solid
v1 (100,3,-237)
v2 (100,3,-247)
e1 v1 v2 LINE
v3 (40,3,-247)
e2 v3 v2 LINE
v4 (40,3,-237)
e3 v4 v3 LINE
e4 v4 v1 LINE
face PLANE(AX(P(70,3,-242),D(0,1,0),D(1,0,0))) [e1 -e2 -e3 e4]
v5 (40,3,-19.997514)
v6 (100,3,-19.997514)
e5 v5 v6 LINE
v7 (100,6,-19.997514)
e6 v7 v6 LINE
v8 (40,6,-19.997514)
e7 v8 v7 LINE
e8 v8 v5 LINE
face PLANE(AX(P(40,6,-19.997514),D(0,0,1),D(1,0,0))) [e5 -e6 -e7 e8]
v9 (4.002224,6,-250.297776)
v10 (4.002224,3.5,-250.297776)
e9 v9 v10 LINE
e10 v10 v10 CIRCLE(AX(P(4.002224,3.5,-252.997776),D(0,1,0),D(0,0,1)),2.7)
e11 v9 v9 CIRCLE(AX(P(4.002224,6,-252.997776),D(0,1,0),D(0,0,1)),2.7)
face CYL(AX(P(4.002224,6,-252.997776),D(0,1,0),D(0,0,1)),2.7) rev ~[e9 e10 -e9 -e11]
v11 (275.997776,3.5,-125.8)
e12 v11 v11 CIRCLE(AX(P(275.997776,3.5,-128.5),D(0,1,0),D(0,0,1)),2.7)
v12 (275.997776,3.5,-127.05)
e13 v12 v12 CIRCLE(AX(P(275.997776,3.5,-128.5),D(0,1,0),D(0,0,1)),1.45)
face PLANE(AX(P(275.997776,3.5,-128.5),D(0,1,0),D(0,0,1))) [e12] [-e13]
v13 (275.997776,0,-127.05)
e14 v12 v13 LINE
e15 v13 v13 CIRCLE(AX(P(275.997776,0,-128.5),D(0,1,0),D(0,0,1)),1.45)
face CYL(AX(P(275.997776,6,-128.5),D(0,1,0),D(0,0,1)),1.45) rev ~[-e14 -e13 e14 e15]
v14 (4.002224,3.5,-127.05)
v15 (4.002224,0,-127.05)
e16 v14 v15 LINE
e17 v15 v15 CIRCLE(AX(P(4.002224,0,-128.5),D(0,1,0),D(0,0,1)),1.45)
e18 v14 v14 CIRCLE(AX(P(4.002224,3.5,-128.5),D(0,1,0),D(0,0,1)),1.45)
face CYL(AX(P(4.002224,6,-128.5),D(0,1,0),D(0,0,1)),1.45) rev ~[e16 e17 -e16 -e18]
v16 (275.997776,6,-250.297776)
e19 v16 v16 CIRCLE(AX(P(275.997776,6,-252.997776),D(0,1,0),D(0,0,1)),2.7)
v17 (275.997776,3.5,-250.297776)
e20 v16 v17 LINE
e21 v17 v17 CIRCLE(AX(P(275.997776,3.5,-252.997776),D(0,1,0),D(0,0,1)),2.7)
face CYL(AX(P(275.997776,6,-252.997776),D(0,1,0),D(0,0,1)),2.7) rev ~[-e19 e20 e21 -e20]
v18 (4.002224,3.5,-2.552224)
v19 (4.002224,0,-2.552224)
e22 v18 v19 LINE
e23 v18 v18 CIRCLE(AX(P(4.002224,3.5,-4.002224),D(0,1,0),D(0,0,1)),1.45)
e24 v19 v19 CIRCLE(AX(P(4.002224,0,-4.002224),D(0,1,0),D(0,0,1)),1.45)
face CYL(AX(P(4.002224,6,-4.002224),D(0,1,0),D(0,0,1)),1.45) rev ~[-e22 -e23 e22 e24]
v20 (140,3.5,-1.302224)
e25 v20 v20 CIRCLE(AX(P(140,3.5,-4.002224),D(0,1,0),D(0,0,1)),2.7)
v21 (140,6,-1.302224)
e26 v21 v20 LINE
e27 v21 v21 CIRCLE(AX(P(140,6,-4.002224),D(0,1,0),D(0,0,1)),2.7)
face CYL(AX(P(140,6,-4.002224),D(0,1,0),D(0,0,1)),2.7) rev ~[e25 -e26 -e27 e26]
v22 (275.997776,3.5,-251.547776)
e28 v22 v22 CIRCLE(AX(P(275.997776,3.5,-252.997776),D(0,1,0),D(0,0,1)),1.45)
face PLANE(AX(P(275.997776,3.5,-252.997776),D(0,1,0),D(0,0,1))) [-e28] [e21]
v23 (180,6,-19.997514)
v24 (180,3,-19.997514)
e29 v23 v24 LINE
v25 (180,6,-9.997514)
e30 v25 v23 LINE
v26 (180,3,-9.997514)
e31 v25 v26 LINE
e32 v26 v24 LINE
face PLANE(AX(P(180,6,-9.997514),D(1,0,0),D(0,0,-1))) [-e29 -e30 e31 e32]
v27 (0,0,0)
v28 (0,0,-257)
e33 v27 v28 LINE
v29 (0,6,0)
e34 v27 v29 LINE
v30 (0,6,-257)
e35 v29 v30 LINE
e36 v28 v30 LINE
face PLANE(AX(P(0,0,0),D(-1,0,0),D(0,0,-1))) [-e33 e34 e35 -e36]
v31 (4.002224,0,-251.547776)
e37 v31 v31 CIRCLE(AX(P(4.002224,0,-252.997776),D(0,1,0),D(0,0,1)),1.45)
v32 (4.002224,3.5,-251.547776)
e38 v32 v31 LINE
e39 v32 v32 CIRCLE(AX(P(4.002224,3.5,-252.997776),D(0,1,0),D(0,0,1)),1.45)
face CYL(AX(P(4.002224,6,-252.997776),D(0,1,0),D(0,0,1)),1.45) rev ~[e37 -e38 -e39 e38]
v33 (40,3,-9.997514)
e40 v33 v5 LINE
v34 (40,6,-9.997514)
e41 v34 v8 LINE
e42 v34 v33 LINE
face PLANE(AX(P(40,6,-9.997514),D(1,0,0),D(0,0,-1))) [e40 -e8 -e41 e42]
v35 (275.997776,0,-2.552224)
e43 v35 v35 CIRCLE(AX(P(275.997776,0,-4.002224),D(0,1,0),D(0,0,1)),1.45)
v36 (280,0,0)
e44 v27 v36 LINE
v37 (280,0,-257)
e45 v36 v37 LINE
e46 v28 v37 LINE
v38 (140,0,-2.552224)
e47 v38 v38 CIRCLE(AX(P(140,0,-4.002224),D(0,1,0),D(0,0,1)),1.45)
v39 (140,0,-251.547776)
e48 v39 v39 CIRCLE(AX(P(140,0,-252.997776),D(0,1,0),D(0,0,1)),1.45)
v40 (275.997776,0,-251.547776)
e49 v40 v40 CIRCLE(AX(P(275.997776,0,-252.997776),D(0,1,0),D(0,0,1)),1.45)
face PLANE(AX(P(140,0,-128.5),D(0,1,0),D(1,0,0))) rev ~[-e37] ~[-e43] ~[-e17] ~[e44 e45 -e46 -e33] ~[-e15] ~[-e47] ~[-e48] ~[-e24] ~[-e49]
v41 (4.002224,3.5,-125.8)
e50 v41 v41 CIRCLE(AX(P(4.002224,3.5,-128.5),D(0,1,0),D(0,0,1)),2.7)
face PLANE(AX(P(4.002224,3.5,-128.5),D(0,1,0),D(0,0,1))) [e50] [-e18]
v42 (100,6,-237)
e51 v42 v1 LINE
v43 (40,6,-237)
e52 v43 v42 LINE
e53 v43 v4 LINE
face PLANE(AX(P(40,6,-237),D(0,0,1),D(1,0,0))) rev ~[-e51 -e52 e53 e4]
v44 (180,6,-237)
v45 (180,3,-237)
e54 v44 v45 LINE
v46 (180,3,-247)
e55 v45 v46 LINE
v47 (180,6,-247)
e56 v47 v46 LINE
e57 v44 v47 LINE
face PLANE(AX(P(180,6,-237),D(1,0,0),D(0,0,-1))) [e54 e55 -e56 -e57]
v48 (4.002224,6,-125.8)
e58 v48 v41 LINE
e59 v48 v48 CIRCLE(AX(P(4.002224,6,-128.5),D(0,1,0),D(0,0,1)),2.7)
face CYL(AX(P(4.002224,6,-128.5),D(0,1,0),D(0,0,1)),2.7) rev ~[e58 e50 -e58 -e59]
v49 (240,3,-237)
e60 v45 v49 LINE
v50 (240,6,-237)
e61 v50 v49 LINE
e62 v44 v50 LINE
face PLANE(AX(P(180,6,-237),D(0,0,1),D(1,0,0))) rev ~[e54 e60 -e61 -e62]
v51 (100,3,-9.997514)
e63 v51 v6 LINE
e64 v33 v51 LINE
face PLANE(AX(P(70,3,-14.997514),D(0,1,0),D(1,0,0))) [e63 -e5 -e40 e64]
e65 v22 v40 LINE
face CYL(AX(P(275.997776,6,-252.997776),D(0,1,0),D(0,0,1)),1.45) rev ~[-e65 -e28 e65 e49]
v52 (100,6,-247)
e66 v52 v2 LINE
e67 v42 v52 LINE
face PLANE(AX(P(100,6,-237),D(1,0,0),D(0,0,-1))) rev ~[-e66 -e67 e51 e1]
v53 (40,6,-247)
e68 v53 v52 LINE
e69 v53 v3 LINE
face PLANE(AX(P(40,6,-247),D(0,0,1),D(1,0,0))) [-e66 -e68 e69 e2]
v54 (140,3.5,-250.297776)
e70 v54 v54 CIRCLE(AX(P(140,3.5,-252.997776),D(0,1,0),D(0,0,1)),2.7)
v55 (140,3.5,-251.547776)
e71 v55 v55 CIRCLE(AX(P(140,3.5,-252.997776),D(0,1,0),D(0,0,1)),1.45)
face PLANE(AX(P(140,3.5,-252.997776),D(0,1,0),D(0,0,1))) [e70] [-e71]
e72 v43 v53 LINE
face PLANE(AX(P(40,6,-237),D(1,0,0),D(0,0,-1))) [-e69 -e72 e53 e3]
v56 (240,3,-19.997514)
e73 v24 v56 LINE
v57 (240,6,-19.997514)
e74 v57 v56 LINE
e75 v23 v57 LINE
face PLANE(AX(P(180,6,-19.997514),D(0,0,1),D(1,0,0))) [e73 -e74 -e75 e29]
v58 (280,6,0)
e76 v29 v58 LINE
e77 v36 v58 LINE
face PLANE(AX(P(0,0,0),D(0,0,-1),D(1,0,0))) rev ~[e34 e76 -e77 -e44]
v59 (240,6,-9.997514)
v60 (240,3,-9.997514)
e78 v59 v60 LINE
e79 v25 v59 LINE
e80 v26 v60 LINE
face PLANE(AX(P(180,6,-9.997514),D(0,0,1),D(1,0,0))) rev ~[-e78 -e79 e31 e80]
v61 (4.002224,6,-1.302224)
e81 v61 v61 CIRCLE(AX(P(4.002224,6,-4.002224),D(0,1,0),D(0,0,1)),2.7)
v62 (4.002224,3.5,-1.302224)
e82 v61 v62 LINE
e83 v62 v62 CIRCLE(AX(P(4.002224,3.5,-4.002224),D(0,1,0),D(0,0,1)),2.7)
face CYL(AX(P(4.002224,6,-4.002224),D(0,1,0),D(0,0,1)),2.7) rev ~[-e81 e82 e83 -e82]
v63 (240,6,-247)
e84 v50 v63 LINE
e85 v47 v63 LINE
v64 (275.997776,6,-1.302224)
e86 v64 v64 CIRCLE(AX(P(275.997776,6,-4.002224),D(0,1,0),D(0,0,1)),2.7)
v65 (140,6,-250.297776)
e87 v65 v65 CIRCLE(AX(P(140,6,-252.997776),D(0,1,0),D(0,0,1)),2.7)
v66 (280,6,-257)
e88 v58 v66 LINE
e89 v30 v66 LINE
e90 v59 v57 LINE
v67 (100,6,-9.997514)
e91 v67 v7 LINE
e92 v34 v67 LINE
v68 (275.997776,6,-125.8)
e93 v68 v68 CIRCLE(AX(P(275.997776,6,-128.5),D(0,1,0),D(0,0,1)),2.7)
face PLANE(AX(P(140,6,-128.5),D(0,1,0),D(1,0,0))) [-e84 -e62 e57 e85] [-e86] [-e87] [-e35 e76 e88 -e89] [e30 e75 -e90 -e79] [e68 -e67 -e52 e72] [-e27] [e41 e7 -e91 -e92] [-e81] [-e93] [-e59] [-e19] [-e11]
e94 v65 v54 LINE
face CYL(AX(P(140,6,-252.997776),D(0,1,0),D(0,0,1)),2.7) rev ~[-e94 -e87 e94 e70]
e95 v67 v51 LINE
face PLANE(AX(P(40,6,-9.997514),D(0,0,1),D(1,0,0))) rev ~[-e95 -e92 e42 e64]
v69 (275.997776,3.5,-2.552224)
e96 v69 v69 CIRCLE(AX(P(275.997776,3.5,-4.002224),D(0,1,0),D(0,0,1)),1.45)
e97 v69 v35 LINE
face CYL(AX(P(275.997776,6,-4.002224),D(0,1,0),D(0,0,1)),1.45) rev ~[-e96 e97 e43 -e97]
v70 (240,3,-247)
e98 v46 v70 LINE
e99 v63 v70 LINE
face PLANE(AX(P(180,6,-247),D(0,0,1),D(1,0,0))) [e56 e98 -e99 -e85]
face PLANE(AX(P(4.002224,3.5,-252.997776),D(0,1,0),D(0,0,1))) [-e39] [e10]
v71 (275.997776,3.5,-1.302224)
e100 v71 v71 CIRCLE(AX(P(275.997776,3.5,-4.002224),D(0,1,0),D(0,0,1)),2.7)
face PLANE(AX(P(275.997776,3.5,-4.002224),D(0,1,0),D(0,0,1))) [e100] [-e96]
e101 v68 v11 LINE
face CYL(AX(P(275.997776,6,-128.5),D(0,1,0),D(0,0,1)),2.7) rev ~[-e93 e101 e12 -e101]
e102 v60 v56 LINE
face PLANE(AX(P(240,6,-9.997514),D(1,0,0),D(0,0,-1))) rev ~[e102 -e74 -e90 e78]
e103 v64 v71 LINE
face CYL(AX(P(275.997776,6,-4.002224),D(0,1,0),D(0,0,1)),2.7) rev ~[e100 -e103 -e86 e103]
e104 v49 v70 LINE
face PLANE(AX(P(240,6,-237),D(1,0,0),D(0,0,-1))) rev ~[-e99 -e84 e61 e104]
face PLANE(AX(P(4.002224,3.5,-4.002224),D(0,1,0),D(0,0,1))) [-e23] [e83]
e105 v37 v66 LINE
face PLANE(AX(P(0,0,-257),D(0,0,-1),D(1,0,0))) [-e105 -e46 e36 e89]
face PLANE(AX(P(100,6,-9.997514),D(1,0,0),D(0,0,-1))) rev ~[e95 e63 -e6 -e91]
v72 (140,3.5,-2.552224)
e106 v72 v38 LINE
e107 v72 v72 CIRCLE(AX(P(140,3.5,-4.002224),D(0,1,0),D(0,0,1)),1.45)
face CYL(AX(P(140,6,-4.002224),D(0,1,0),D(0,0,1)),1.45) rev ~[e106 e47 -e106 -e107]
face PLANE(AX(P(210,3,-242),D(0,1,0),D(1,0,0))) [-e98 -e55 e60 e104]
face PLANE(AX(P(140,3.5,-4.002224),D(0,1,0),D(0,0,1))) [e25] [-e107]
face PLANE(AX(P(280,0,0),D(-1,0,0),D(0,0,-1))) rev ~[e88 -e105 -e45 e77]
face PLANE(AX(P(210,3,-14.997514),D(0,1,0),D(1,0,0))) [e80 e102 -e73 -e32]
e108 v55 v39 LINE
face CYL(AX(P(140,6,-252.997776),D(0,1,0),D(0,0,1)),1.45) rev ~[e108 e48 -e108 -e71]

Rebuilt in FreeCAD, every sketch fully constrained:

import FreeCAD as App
import Part
import Sketcher
from FreeCAD import Vector


def add_polygon(sketch, points):
    """Adds a closed chain of lines whose ends are joined by coincident constraints."""
    first, n = sketch.GeometryCount, len(points)
    for a, b in zip(points, points[1:] + points[:1]):
        sketch.addGeometry(Part.LineSegment(App.Vector(*a, 0), App.Vector(*b, 0)), False)
    for i in range(n):
        sketch.addConstraint(Sketcher.Constraint("Coincident", first + i, 2, first + (i + 1) % n, 1))

doc = App.newDocument("Part")
body = doc.addObject("PartDesign::Body", "Body")

# Sketch on XZ plane
sketch1 = body.newObject("Sketcher::SketchObject", "Sketch")
sketch1.AttachmentSupport = (doc.getObject("XZ_Plane"), [""])
sketch1.MapMode = "FlatFace"
add_polygon(sketch1, [(0, -257), (0, 0), (280, 0), (280, -257)])  # lines 0-3
sketch1.addConstraint([
    Sketcher.Constraint("Vertical", 0),
    Sketcher.Constraint("Horizontal", 1),
    Sketcher.Constraint("Vertical", 2),
    Sketcher.Constraint("Horizontal", 3),
    Sketcher.Constraint("Coincident", 0, 2, -1, 1),
    Sketcher.Constraint("DistanceX", 1, 1, 1, 2, 280.0),
    Sketcher.Constraint("DistanceY", 0, 1, 0, 2, 257.0),
])
pad1 = body.newObject("PartDesign::Pad", "Pad")
pad1.Profile = sketch1
pad1.Length = 6
pad1.Reversed = True

# Sketch on XZ plane
sketch2 = body.newObject("Sketcher::SketchObject", "Sketch001")
sketch2.AttachmentSupport = (doc.getObject("XZ_Plane"), [""])
sketch2.MapMode = "FlatFace"
sketch2.AttachmentOffset = App.Placement(Vector(0, 0, -6), App.Rotation())
sketch2.addGeometry([
    Part.Circle(Vector(4, -253, 0), Vector(0, 0, 1), 1.4),  # 0
    Part.Circle(Vector(276, -253, 0), Vector(0, 0, 1), 1.4),  # 1
    Part.Circle(Vector(4, -4, 0), Vector(0, 0, 1), 1.4),  # 2
    Part.Circle(Vector(276, -4, 0), Vector(0, 0, 1), 1.4),  # 3
    Part.Circle(Vector(4, -128.5, 0), Vector(0, 0, 1), 1.4),  # 4
    Part.Circle(Vector(276, -128.5, 0), Vector(0, 0, 1), 1.4),  # 5
    Part.Circle(Vector(140, -4, 0), Vector(0, 0, 1), 1.4),  # 6
    Part.Circle(Vector(140, -253, 0), Vector(0, 0, 1), 1.4),  # 7
], False)
sketch2.addConstraint([
    Sketcher.Constraint("Equal", 0, 1),
    Sketcher.Constraint("Equal", 1, 2),
    Sketcher.Constraint("Equal", 2, 3),
    Sketcher.Constraint("Equal", 3, 4),
    Sketcher.Constraint("Equal", 4, 5),
    Sketcher.Constraint("Equal", 5, 6),
    Sketcher.Constraint("Equal", 6, 7),
    Sketcher.Constraint("Horizontal", 0, 3, 1, 3),
    Sketcher.Constraint("Horizontal", 2, 3, 3, 3),
    Sketcher.Constraint("Horizontal", 4, 3, 5, 3),
    Sketcher.Constraint("Horizontal", 3, 3, 6, 3),
    Sketcher.Constraint("Horizontal", 1, 3, 7, 3),
    Sketcher.Constraint("Vertical", 0, 3, 2, 3),
    Sketcher.Constraint("Vertical", 1, 3, 3, 3),
    Sketcher.Constraint("Vertical", 2, 3, 4, 3),
    Sketcher.Constraint("Vertical", 3, 3, 5, 3),
    Sketcher.Constraint("Vertical", 6, 3, 7, 3),
    Sketcher.Constraint("Diameter", 0, 2.9),
    Sketcher.Constraint("DistanceX", -1, 1, 6, 3, 140.0),
    Sketcher.Constraint("DistanceY", 4, 3, -1, 1, 128.5),
    Sketcher.Constraint("DistanceX", 0, 3, 1, 3, 271.995551),
    Sketcher.Constraint("DistanceY", 0, 3, 2, 3, 248.995551),
    Sketcher.Constraint("DistanceX", -1, 1, 0, 3, 4.002224),
    Sketcher.Constraint("DistanceY", 0, 3, -1, 1, 252.997776),
])
pocket1 = body.newObject("PartDesign::Pocket", "Pocket")
pocket1.Profile = sketch2
pocket1.Type = "ThroughAll"
pocket1.Reversed = True

# Sketch on XZ plane
sketch3 = body.newObject("Sketcher::SketchObject", "Sketch002")
sketch3.AttachmentSupport = (doc.getObject("XZ_Plane"), [""])
sketch3.MapMode = "FlatFace"
sketch3.AttachmentOffset = App.Placement(Vector(0, 0, -6), App.Rotation())
sketch3.addGeometry([
    Part.Circle(Vector(4, -4, 0), Vector(0, 0, 1), 2.7),  # 0
    Part.Circle(Vector(4, -253, 0), Vector(0, 0, 1), 2.7),  # 1
    Part.Circle(Vector(276, -253, 0), Vector(0, 0, 1), 2.7),  # 2
    Part.Circle(Vector(276, -4, 0), Vector(0, 0, 1), 2.7),  # 3
    Part.Circle(Vector(4, -128.5, 0), Vector(0, 0, 1), 2.7),  # 4
    Part.Circle(Vector(276, -128.5, 0), Vector(0, 0, 1), 2.7),  # 5
    Part.Circle(Vector(140, -253, 0), Vector(0, 0, 1), 2.7),  # 6
    Part.Circle(Vector(140, -4, 0), Vector(0, 0, 1), 2.7),  # 7
], False)
sketch3.addConstraint([
    Sketcher.Constraint("Equal", 0, 1),
    Sketcher.Constraint("Equal", 1, 2),
    Sketcher.Constraint("Equal", 2, 3),
    Sketcher.Constraint("Equal", 3, 4),
    Sketcher.Constraint("Equal", 4, 5),
    Sketcher.Constraint("Equal", 5, 6),
    Sketcher.Constraint("Equal", 6, 7),
    Sketcher.Constraint("Horizontal", 1, 3, 2, 3),
    Sketcher.Constraint("Horizontal", 0, 3, 3, 3),
    Sketcher.Constraint("Horizontal", 4, 3, 5, 3),
    Sketcher.Constraint("Horizontal", 2, 3, 6, 3),
    Sketcher.Constraint("Horizontal", 3, 3, 7, 3),
    Sketcher.Constraint("Vertical", 0, 3, 1, 3),
    Sketcher.Constraint("Vertical", 2, 3, 3, 3),
    Sketcher.Constraint("Vertical", 1, 3, 4, 3),
    Sketcher.Constraint("Vertical", 3, 3, 5, 3),
    Sketcher.Constraint("Vertical", 6, 3, 7, 3),
    Sketcher.Constraint("Diameter", 0, 5.4),
    Sketcher.Constraint("DistanceX", -1, 1, 6, 3, 140.0),
    Sketcher.Constraint("DistanceY", 4, 3, -1, 1, 128.5),
    Sketcher.Constraint("DistanceY", 1, 3, 0, 3, 248.995551),
    Sketcher.Constraint("DistanceX", 1, 3, 2, 3, 271.995551),
    Sketcher.Constraint("DistanceX", -1, 1, 0, 3, 4.002224),
    Sketcher.Constraint("DistanceY", 0, 3, -1, 1, 4.002224),
])
pocket2 = body.newObject("PartDesign::Pocket", "Pocket001")
pocket2.Profile = sketch3
pocket2.Length = 2.5
pocket2.Reversed = True

# Sketch on XZ plane
sketch4 = body.newObject("Sketcher::SketchObject", "Sketch003")
sketch4.AttachmentSupport = (doc.getObject("XZ_Plane"), [""])
sketch4.MapMode = "FlatFace"
sketch4.AttachmentOffset = App.Placement(Vector(0, 0, -6), App.Rotation())
add_polygon(sketch4, [(40, -247), (40, -237), (100, -237), (100, -247)])  # lines 0-3
add_polygon(sketch4, [(40, -20), (40, -10), (100, -10), (100, -20)])  # lines 4-7
add_polygon(sketch4, [(180, -20), (180, -10), (240, -10), (240, -20)])  # lines 8-11
add_polygon(sketch4, [(180, -247), (180, -237), (240, -237), (240, -247)])  # lines 12-15
sketch4.addConstraint([
    Sketcher.Constraint("Vertical", 0),
    Sketcher.Constraint("Horizontal", 1),
    Sketcher.Constraint("Vertical", 2),
    Sketcher.Constraint("Horizontal", 3),
    Sketcher.Constraint("Vertical", 4),
    Sketcher.Constraint("Horizontal", 5),
    Sketcher.Constraint("Vertical", 6),
    Sketcher.Constraint("Horizontal", 7),
    Sketcher.Constraint("Vertical", 8),
    Sketcher.Constraint("Horizontal", 9),
    Sketcher.Constraint("Vertical", 10),
    Sketcher.Constraint("Horizontal", 11),
    Sketcher.Constraint("Vertical", 12),
    Sketcher.Constraint("Horizontal", 13),
    Sketcher.Constraint("Vertical", 14),
    Sketcher.Constraint("Horizontal", 15),
    Sketcher.Constraint("Horizontal", 5, 2, 8, 2),
    Sketcher.Constraint("Horizontal", 7, 2, 10, 2),
    Sketcher.Constraint("Horizontal", 1, 2, 12, 2),
    Sketcher.Constraint("Horizontal", 3, 2, 14, 2),
    Sketcher.Constraint("Vertical", 3, 2, 4, 2),
    Sketcher.Constraint("Vertical", 2, 2, 5, 2),
    Sketcher.Constraint("Vertical", 11, 2, 12, 2),
    Sketcher.Constraint("Vertical", 10, 2, 13, 2),
    Sketcher.Constraint("Equal", 7, 9),
    Sketcher.Constraint("Equal", 2, 4),
    Sketcher.Constraint("DistanceX", 1, 1, 1, 2, 60.0),
    Sketcher.Constraint("DistanceY", 0, 1, 0, 2, 10.0),
    Sketcher.Constraint("DistanceX", -1, 1, 0, 2, 40.0),
    Sketcher.Constraint("DistanceY", 0, 2, -1, 1, 237.0),
    Sketcher.Constraint("DistanceX", -1, 1, 8, 2, 180.0),
    Sketcher.Constraint("DistanceY", 4, 2, -1, 1, 9.997514),
])
pocket3 = body.newObject("PartDesign::Pocket", "Pocket002")
pocket3.Profile = sketch4
pocket3.Length = 3
pocket3.Reversed = True

doc.recompute()
